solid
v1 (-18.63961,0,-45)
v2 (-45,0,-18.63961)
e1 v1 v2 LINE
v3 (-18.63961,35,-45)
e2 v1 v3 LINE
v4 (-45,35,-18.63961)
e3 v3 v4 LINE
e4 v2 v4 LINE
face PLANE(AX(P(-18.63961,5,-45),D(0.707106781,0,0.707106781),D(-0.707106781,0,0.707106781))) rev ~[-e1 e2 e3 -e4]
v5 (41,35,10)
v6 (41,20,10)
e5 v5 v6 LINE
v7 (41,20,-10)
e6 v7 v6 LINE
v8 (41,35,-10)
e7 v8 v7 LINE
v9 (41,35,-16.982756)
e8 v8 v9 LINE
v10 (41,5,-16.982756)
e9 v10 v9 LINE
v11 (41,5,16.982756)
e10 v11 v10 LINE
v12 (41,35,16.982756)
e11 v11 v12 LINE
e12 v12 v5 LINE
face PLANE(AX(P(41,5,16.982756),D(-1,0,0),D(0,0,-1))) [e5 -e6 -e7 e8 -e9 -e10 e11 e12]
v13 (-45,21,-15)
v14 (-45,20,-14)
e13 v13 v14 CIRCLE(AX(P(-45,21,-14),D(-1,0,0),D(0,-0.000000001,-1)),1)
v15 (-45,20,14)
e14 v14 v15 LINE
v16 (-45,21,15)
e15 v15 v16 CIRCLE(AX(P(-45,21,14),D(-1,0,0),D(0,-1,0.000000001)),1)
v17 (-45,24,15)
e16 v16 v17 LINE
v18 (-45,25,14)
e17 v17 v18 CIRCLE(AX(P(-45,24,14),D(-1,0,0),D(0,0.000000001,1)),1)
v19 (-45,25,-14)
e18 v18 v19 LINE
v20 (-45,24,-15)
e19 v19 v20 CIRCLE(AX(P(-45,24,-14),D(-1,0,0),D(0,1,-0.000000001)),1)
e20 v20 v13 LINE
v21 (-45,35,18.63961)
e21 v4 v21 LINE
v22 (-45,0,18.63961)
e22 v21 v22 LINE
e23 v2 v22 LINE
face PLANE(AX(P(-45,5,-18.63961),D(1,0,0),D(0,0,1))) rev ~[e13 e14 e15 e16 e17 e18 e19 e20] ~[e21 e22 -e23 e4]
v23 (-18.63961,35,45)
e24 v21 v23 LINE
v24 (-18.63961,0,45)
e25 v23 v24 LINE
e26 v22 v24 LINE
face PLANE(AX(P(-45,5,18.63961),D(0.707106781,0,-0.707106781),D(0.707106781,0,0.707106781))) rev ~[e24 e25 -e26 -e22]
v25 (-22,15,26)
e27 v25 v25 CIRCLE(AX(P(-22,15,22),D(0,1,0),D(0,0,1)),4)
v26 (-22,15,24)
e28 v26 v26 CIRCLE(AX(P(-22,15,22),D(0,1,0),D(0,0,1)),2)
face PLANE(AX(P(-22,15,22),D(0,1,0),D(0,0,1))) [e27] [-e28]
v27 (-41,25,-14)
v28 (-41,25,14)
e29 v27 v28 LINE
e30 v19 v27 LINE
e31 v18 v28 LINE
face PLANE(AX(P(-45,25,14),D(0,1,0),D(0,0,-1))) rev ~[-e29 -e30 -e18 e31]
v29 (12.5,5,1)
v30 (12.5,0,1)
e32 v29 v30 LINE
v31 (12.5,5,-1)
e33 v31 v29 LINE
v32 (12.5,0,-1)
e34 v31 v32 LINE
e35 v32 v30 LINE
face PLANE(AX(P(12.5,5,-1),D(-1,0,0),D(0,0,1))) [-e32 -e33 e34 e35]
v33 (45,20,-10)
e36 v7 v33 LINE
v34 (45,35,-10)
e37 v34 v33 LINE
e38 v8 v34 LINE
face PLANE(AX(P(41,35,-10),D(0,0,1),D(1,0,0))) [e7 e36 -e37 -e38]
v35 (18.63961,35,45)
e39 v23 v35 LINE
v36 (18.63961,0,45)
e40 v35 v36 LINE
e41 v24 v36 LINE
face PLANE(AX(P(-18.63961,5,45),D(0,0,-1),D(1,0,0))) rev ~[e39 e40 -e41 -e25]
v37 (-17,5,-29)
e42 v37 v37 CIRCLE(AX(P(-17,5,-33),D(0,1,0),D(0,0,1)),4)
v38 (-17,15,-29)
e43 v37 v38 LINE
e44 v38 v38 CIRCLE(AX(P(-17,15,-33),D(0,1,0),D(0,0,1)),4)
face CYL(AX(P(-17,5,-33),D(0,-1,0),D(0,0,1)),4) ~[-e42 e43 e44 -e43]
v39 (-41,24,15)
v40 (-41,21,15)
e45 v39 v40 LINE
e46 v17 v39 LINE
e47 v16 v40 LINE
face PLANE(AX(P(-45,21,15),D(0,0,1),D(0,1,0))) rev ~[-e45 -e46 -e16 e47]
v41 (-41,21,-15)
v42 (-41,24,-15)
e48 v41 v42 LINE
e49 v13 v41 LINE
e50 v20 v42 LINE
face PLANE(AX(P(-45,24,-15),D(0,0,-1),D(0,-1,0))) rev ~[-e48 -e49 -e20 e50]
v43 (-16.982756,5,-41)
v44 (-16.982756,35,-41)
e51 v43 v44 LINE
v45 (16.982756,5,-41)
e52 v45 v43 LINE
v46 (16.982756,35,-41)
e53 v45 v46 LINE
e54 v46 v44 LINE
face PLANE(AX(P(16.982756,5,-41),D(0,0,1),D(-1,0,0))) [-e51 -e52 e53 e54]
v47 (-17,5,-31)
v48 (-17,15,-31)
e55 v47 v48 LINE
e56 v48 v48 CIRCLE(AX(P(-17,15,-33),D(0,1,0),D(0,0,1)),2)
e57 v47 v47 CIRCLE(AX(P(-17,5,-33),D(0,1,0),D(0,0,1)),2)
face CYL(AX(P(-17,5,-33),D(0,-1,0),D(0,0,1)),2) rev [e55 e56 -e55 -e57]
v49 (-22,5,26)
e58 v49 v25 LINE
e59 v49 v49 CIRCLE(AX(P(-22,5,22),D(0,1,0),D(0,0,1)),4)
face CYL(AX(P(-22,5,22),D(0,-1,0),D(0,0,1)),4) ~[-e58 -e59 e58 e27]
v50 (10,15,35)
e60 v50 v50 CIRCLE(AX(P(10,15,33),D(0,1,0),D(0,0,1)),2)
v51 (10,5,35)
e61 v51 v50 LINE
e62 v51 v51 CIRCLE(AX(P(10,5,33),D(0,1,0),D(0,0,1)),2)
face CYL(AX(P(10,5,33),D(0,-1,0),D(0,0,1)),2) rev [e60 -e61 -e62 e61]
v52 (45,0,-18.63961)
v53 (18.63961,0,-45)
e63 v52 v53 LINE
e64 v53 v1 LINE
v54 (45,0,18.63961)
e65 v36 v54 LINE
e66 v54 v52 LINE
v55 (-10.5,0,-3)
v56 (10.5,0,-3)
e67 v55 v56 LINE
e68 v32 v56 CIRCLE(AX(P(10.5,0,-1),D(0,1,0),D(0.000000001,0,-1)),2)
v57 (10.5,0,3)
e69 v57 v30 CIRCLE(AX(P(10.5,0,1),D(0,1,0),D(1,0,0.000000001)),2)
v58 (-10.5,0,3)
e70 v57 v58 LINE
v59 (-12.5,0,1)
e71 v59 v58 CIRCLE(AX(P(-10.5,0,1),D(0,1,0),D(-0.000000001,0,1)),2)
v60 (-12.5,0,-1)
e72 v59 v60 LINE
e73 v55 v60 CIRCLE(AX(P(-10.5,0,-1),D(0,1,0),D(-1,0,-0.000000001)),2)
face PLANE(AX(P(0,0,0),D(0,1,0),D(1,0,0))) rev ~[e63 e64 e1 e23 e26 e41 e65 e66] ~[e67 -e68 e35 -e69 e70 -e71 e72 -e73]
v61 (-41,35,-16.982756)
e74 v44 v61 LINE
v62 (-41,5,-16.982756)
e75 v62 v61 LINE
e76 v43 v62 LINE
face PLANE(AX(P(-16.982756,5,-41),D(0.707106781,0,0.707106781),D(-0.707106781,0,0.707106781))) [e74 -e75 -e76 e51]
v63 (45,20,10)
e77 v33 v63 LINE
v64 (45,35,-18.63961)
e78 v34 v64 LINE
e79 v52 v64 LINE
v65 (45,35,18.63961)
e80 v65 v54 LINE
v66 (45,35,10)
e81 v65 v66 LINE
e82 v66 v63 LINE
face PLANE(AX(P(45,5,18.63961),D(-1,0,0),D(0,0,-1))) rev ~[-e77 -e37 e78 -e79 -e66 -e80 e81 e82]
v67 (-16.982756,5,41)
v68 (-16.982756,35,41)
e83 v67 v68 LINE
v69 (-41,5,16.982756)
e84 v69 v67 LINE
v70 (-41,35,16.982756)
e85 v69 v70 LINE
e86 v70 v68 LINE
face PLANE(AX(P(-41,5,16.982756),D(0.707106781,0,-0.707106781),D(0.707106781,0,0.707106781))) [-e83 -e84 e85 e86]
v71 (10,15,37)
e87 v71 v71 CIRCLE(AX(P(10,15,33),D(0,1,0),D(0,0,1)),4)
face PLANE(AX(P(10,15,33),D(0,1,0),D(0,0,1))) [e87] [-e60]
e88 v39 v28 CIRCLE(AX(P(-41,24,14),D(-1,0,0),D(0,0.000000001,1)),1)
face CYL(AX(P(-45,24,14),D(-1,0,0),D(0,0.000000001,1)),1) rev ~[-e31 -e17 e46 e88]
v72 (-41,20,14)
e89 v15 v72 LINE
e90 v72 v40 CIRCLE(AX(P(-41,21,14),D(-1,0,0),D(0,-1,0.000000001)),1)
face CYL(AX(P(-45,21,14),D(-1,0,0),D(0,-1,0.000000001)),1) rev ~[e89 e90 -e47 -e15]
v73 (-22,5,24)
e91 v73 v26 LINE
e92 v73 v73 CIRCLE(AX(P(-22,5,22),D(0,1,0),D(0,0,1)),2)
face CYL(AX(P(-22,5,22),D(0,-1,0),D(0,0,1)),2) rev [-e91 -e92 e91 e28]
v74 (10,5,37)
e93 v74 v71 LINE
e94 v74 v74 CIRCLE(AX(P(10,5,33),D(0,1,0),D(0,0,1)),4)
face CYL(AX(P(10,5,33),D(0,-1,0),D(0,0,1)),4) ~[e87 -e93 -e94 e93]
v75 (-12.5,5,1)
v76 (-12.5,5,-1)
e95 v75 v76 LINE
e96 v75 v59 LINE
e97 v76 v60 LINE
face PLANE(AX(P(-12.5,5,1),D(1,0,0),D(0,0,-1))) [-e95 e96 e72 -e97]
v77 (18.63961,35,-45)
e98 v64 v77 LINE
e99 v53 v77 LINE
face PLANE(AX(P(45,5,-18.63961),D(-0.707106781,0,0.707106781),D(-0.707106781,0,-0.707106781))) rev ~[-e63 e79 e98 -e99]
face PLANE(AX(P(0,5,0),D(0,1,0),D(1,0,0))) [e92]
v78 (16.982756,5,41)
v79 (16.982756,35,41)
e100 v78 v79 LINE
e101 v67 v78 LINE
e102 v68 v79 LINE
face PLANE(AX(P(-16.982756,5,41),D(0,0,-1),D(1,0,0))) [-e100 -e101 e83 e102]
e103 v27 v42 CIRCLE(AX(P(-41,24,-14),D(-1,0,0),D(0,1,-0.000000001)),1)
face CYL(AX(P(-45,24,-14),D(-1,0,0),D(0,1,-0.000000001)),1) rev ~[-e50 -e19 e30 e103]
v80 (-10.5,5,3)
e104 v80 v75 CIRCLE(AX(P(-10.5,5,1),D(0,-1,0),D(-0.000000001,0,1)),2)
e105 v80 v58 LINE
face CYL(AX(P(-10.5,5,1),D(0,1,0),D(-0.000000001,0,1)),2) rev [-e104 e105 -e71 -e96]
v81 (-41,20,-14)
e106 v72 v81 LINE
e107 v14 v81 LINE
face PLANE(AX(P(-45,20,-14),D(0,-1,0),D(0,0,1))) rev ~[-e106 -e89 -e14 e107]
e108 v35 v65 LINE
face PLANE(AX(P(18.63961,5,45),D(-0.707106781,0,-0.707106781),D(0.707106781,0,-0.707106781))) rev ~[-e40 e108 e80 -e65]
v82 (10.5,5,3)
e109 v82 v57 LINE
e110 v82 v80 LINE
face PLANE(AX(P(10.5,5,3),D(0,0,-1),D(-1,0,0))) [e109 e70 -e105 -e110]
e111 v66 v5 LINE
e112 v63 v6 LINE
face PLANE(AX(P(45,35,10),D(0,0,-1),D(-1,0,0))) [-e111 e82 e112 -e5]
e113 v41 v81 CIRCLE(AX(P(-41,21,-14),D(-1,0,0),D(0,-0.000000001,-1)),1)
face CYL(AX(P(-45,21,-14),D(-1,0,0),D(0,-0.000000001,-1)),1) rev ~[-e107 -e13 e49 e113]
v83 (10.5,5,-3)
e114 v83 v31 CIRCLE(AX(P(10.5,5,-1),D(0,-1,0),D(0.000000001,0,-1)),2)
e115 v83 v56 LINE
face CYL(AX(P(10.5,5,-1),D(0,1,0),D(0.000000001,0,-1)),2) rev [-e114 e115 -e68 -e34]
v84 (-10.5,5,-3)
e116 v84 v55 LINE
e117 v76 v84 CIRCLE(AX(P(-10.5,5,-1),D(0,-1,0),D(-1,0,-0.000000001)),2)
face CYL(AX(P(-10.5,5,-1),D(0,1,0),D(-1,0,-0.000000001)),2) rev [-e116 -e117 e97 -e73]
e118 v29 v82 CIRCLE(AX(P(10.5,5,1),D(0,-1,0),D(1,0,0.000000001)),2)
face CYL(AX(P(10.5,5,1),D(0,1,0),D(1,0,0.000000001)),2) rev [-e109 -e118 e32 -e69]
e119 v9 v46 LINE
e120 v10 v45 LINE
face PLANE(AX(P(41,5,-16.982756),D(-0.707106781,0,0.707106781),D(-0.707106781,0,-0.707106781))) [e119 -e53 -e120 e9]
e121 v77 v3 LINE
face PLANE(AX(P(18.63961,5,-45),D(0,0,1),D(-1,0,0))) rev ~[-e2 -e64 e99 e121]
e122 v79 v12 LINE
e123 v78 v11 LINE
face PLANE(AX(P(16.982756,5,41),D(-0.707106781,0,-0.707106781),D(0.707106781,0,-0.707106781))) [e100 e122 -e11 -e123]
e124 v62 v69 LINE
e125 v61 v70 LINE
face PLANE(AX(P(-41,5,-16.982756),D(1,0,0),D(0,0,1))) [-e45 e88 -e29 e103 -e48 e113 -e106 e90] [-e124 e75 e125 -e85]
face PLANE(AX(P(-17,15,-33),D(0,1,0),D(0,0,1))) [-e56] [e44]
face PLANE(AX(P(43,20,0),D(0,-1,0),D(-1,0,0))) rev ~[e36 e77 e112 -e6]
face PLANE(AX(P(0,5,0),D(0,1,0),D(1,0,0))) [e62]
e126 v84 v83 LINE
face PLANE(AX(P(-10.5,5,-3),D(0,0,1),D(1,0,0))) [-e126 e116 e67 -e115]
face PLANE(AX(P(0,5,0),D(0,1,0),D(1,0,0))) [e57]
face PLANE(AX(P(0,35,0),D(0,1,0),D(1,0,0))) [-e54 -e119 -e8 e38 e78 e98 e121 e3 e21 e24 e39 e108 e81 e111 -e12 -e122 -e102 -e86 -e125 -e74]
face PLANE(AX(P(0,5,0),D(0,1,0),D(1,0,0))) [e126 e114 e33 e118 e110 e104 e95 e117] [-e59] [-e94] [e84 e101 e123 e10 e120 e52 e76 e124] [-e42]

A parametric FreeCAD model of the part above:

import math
import FreeCAD as App
import Part
import Sketcher

V = App.Vector
Q = App.Units.Quantity

doc = App.newDocument("Part")
body = doc.addObject("PartDesign::Body", "Body")

# Sketch on XZ plane
sketch1 = body.newObject("Sketcher::SketchObject", "Sketch")
sketch1.AttachmentSupport = (doc.getObject("XZ_Plane"), [""])
sketch1.MapMode = "FlatFace"
sketch1.addGeometry([
    Part.LineSegment(V(45, -19, 0), V(19, -45, 0)),  # 0
    Part.LineSegment(V(19, -45, 0), V(-19, -45, 0)),  # 1
    Part.LineSegment(V(-19, -45, 0), V(-45, -19, 0)),  # 2
    Part.LineSegment(V(-45, -19, 0), V(-45, 19, 0)),  # 3
    Part.LineSegment(V(-45, 19, 0), V(-19, 45, 0)),  # 4
    Part.LineSegment(V(-19, 45, 0), V(19, 45, 0)),  # 5
    Part.LineSegment(V(19, 45, 0), V(45, 19, 0)),  # 6
    Part.LineSegment(V(45, 19, 0), V(45, -19, 0)),  # 7
], False)
sketch1.addConstraint([
    Sketcher.Constraint("Coincident", 0, 2, 1, 1),
    Sketcher.Constraint("Coincident", 1, 2, 2, 1),
    Sketcher.Constraint("Coincident", 2, 2, 3, 1),
    Sketcher.Constraint("Coincident", 3, 2, 4, 1),
    Sketcher.Constraint("Coincident", 4, 2, 5, 1),
    Sketcher.Constraint("Coincident", 5, 2, 6, 1),
    Sketcher.Constraint("Coincident", 6, 2, 7, 1),
    Sketcher.Constraint("Coincident", 7, 2, 0, 1),
    Sketcher.Constraint("Horizontal", 1),
    Sketcher.Constraint("Vertical", 3),
    Sketcher.Constraint("Horizontal", 5),
    Sketcher.Constraint("Vertical", 7),
    Sketcher.Constraint("Symmetric", 0, 2, 4, 2, -1, 1),
    Sketcher.Constraint("Symmetric", 2, 2, 6, 2, -1, 1),
    Sketcher.Constraint("Perpendicular", 0, 2),
    Sketcher.Constraint("Perpendicular", 2, 4),
    Sketcher.Constraint("Perpendicular", 4, 6),
    Sketcher.Constraint("Horizontal", 3, 2, 6, 2),
    Sketcher.Constraint("Vertical", 1, 2, 4, 2),
    Sketcher.Constraint("Equal", 5, 3),
    Sketcher.Constraint("DistanceY", 0, 2, -1, 1, Q("45 mm")),
    Sketcher.Constraint("DistanceX", 1, 2, 1, 1, Q("37.279221 mm")),
])
pad1 = body.newObject("PartDesign::Pad", "Pad")
pad1.Profile = sketch1
pad1.Length = 5
pad1.Reversed = True

# Sketch on XZ plane
sketch2 = body.newObject("Sketcher::SketchObject", "Sketch001")
sketch2.AttachmentSupport = (doc.getObject("XZ_Plane"), [""])
sketch2.MapMode = "FlatFace"
sketch2.AttachmentOffset = App.Placement(V(0, 0, -5), App.Rotation())
sketch2.addGeometry([
    Part.LineSegment(V(45, 19, 0), V(45, -19, 0)),  # 0
    Part.LineSegment(V(45, -19, 0), V(19, -45, 0)),  # 1
    Part.LineSegment(V(19, -45, 0), V(-19, -45, 0)),  # 2
    Part.LineSegment(V(-19, -45, 0), V(-45, -19, 0)),  # 3
    Part.LineSegment(V(-45, -19, 0), V(-45, 19, 0)),  # 4
    Part.LineSegment(V(-45, 19, 0), V(-19, 45, 0)),  # 5
    Part.LineSegment(V(-19, 45, 0), V(19, 45, 0)),  # 6
    Part.LineSegment(V(19, 45, 0), V(45, 19, 0)),  # 7
    Part.LineSegment(V(17, -41, 0), V(41, -17, 0)),  # 8
    Part.LineSegment(V(41, -17, 0), V(41, 17, 0)),  # 9
    Part.LineSegment(V(41, 17, 0), V(17, 41, 0)),  # 10
    Part.LineSegment(V(17, 41, 0), V(-17, 41, 0)),  # 11
    Part.LineSegment(V(-17, 41, 0), V(-41, 17, 0)),  # 12
    Part.LineSegment(V(-41, 17, 0), V(-41, -17, 0)),  # 13
    Part.LineSegment(V(-41, -17, 0), V(-17, -41, 0)),  # 14
    Part.LineSegment(V(-17, -41, 0), V(17, -41, 0)),  # 15
], False)
sketch2.addConstraint([
    Sketcher.Constraint("Coincident", 0, 2, 1, 1),
    Sketcher.Constraint("Coincident", 1, 2, 2, 1),
    Sketcher.Constraint("Coincident", 2, 2, 3, 1),
    Sketcher.Constraint("Coincident", 3, 2, 4, 1),
    Sketcher.Constraint("Coincident", 4, 2, 5, 1),
    Sketcher.Constraint("Coincident", 5, 2, 6, 1),
    Sketcher.Constraint("Coincident", 6, 2, 7, 1),
    Sketcher.Constraint("Coincident", 7, 2, 0, 1),
    Sketcher.Constraint("Coincident", 8, 2, 9, 1),
    Sketcher.Constraint("Coincident", 9, 2, 10, 1),
    Sketcher.Constraint("Coincident", 10, 2, 11, 1),
    Sketcher.Constraint("Coincident", 11, 2, 12, 1),
    Sketcher.Constraint("Coincident", 12, 2, 13, 1),
    Sketcher.Constraint("Coincident", 13, 2, 14, 1),
    Sketcher.Constraint("Coincident", 14, 2, 15, 1),
    Sketcher.Constraint("Coincident", 15, 2, 8, 1),
    Sketcher.Constraint("Vertical", 0),
    Sketcher.Constraint("Horizontal", 2),
    Sketcher.Constraint("Vertical", 4),
    Sketcher.Constraint("Horizontal", 6),
    Sketcher.Constraint("Vertical", 9),
    Sketcher.Constraint("Horizontal", 11),
    Sketcher.Constraint("Vertical", 13),
    Sketcher.Constraint("Horizontal", 15),
    Sketcher.Constraint("Symmetric", 0, 2, 4, 2, -1, 1),
    Sketcher.Constraint("Symmetric", 1, 2, 5, 2, -1, 1),
    Sketcher.Constraint("Symmetric", 8, 2, 12, 2, -1, 1),
    Sketcher.Constraint("Symmetric", 10, 2, 14, 2, -1, 1),
    Sketcher.Constraint("Perpendicular", 1, 3),
    Sketcher.Constraint("Perpendicular", 5, 7),
    Sketcher.Constraint("Perpendicular", 7, 8),
    Sketcher.Constraint("Perpendicular", 8, 10),
    Sketcher.Constraint("Perpendicular", 10, 12),
    Sketcher.Constraint("Perpendicular", 12, 14),
    Sketcher.Constraint("Horizontal", 0, 2, 3, 2),
    Sketcher.Constraint("Horizontal", 4, 2, 7, 2),
    Sketcher.Constraint("Horizontal", 9, 2, 12, 2),
    Sketcher.Constraint("Vertical", 2, 2, 5, 2),
    Sketcher.Constraint("Equal", 6, 0),
    Sketcher.Constraint("Equal", 15, 9),
    Sketcher.Constraint("DistanceX", -1, 1, 0, 2, Q("45 mm")),
    Sketcher.Constraint("DistanceX", -1, 1, 8, 2, Q("41 mm")),
    Sketcher.Constraint("DistanceX", 2, 2, 2, 1, Q("37.279221 mm")),
    Sketcher.Constraint("DistanceX", 11, 2, 11, 1, Q("33.965512 mm")),
])
pad2 = body.newObject("PartDesign::Pad", "Pad001")
pad2.Profile = sketch2
pad2.Length = 30
pad2.Reversed = True

# Sketch on XZ plane
sketch3 = body.newObject("Sketcher::SketchObject", "Sketch002")
sketch3.AttachmentSupport = (doc.getObject("XZ_Plane"), [""])
sketch3.MapMode = "FlatFace"
sketch3.AttachmentOffset = App.Placement(V(0, 0, -5), App.Rotation())
sketch3.addGeometry([
    Part.Circle(V(-17, -33, 0), V(0, 0, 1), 4),  # 0
    Part.Circle(V(-17, -33, 0), V(0, 0, 1), 2),  # 1
    Part.Circle(V(10, 33, 0), V(0, 0, 1), 4),  # 2
    Part.Circle(V(10, 33, 0), V(0, 0, 1), 2),  # 3
    Part.Circle(V(-22, 22, 0), V(0, 0, 1), 4),  # 4
    Part.Circle(V(-22, 22, 0), V(0, 0, 1), 2),  # 5
], False)
sketch3.addConstraint([
    Sketcher.Constraint("Coincident", 1, 3, 0, 3),
    Sketcher.Constraint("Coincident", 3, 3, 2, 3),
    Sketcher.Constraint("Coincident", 5, 3, 4, 3),
    Sketcher.Constraint("Equal", 0, 2),
    Sketcher.Constraint("Equal", 1, 3),
    Sketcher.Constraint("Equal", 2, 4),
    Sketcher.Constraint("Equal", 3, 5),
    Sketcher.Constraint("Diameter", 0, Q("8 mm")),
    Sketcher.Constraint("Diameter", 1, Q("4 mm")),
    Sketcher.Constraint("DistanceX", 0, 3, -1, 1, Q("17 mm")),
    Sketcher.Constraint("DistanceY", 0, 3, -1, 1, Q("33 mm")),
    Sketcher.Constraint("DistanceX", -1, 1, 2, 3, Q("10 mm")),
    Sketcher.Constraint("DistanceY", -1, 1, 2, 3, Q("33 mm")),
    Sketcher.Constraint("DistanceX", 4, 3, -1, 1, Q("22 mm")),
    Sketcher.Constraint("DistanceY", -1, 1, 4, 3, Q("22 mm")),
])
pad3 = body.newObject("PartDesign::Pad", "Pad002")
pad3.Profile = sketch3
pad3.Length = 10
pad3.Reversed = True

# Sketch on XZ plane
sketch4 = body.newObject("Sketcher::SketchObject", "Sketch003")
sketch4.AttachmentSupport = (doc.getObject("XZ_Plane"), [""])
sketch4.MapMode = "FlatFace"
sketch4.AttachmentOffset = App.Placement(V(0, 0, -5), App.Rotation())
sketch4.addGeometry([
    Part.ArcOfCircle(Part.Circle(V(10.5, -1, 0), V(0, 0, 1), 2), math.radians(-90), math.radians(0)),  # 0
    Part.LineSegment(V(10.5, -3, 0), V(-10.5, -3, 0)),  # 1
    Part.ArcOfCircle(Part.Circle(V(-10.5, -1, 0), V(0, 0, 1), 2), math.radians(-180), math.radians(-90)),  # 2
    Part.LineSegment(V(-12.5, -1, 0), V(-12.5, 1, 0)),  # 3
    Part.ArcOfCircle(Part.Circle(V(-10.5, 1, 0), V(0, 0, 1), 2), math.radians(90), math.radians(180)),  # 4
    Part.LineSegment(V(-10.5, 3, 0), V(10.5, 3, 0)),  # 5
    Part.ArcOfCircle(Part.Circle(V(10.5, 1, 0), V(0, 0, 1), 2), math.radians(0), math.radians(90)),  # 6
    Part.LineSegment(V(12.5, 1, 0), V(12.5, -1, 0)),  # 7
], False)
sketch4.addConstraint([
    Sketcher.Constraint("Tangent", 0, 1, 1, 1),
    Sketcher.Constraint("Tangent", 1, 2, 2, 2),
    Sketcher.Constraint("Tangent", 2, 1, 3, 1),
    Sketcher.Constraint("Tangent", 3, 2, 4, 2),
    Sketcher.Constraint("Tangent", 4, 1, 5, 1),
    Sketcher.Constraint("Tangent", 5, 2, 6, 2),
    Sketcher.Constraint("Tangent", 6, 1, 7, 1),
    Sketcher.Constraint("Tangent", 7, 2, 0, 2),
    Sketcher.Constraint("Horizontal", 1),
    Sketcher.Constraint("Vertical", 3),
    Sketcher.Constraint("Horizontal", 5),
    Sketcher.Constraint("Vertical", 7),
    Sketcher.Constraint("Equal", 0, 2),
    Sketcher.Constraint("Equal", 2, 4),
    Sketcher.Constraint("Equal", 4, 6),
    Sketcher.Constraint("Symmetric", 0, 3, 4, 3, -1, 1),
    Sketcher.Constraint("Radius", 0, Q("2 mm")),
    Sketcher.Constraint("DistanceX", 1, 2, 1, 1, Q("21 mm")),
    Sketcher.Constraint("DistanceY", 3, 1, 3, 2, Q("2 mm")),
])
pocket1 = body.newObject("PartDesign::Pocket", "Pocket")
pocket1.Profile = sketch4
pocket1.Length = 10
pocket1.Reversed = True

# Sketch on YZ plane
sketch5 = body.newObject("Sketcher::SketchObject", "Sketch004")
sketch5.AttachmentSupport = (doc.getObject("YZ_Plane"), [""])
sketch5.MapMode = "FlatFace"
sketch5.AttachmentOffset = App.Placement(V(0, 0, -45), App.Rotation())
sketch5.addGeometry([
    Part.ArcOfCircle(Part.Circle(V(21, 14, 0), V(0, 0, 1), 1), math.radians(90), math.radians(180)),  # 0
    Part.LineSegment(V(21, 15, 0), V(24, 15, 0)),  # 1
    Part.ArcOfCircle(Part.Circle(V(24, 14, 0), V(0, 0, 1), 1), math.radians(0), math.radians(90)),  # 2
    Part.LineSegment(V(25, 14, 0), V(25, -14, 0)),  # 3
    Part.ArcOfCircle(Part.Circle(V(24, -14, 0), V(0, 0, 1), 1), math.radians(-90), math.radians(0)),  # 4
    Part.LineSegment(V(24, -15, 0), V(21, -15, 0)),  # 5
    Part.ArcOfCircle(Part.Circle(V(21, -14, 0), V(0, 0, 1), 1), math.radians(-180), math.radians(-90)),  # 6
    Part.LineSegment(V(20, -14, 0), V(20, 14, 0)),  # 7
], False)
sketch5.addConstraint([
    Sketcher.Constraint("Tangent", 0, 1, 1, 1),
    Sketcher.Constraint("Tangent", 1, 2, 2, 2),
    Sketcher.Constraint("Tangent", 2, 1, 3, 1),
    Sketcher.Constraint("Tangent", 3, 2, 4, 2),
    Sketcher.Constraint("Tangent", 4, 1, 5, 1),
    Sketcher.Constraint("Tangent", 5, 2, 6, 2),
    Sketcher.Constraint("Tangent", 6, 1, 7, 1),
    Sketcher.Constraint("Tangent", 7, 2, 0, 2),
    Sketcher.Constraint("Horizontal", 1),
    Sketcher.Constraint("Vertical", 3),
    Sketcher.Constraint("Horizontal", 5),
    Sketcher.Constraint("Vertical", 7),
    Sketcher.Constraint("Equal", 0, 2),
    Sketcher.Constraint("Equal", 2, 4),
    Sketcher.Constraint("Equal", 4, 6),
    Sketcher.Constraint("Radius", 0, Q("1 mm")),
    Sketcher.Constraint("DistanceX", 1, 1, 1, 2, Q("3 mm")),
    Sketcher.Constraint("DistanceY", 3, 2, 3, 1, Q("28 mm")),
    Sketcher.Constraint("DistanceX", -1, 1, 0, 3, Q("21 mm")),
    Sketcher.Constraint("DistanceY", -1, 1, 0, 3, Q("14 mm")),
])
pocket2 = body.newObject("PartDesign::Pocket", "Pocket001")
pocket2.Profile = sketch5
pocket2.Length = 10
pocket2.Reversed = True

# Sketch on XZ plane
sketch6 = body.newObject("Sketcher::SketchObject", "Sketch005")
sketch6.AttachmentSupport = (doc.getObject("XZ_Plane"), [""])
sketch6.MapMode = "FlatFace"
sketch6.AttachmentOffset = App.Placement(V(0, 0, -35), App.Rotation())
sketch6.addGeometry([
    Part.LineSegment(V(41, -10, 0), V(41, 10, 0)),
    Part.LineSegment(V(41, 10, 0), V(45, 10, 0)),
    Part.LineSegment(V(45, 10, 0), V(45, -10, 0)),
    Part.LineSegment(V(45, -10, 0), V(41, -10, 0)),
], False)
sketch6.addConstraint([
    Sketcher.Constraint("Coincident", 0, 2, 1, 1),
    Sketcher.Constraint("Coincident", 1, 2, 2, 1),
    Sketcher.Constraint("Coincident", 2, 2, 3, 1),
    Sketcher.Constraint("Coincident", 3, 2, 0, 1),
    Sketcher.Constraint("Vertical", 0),
    Sketcher.Constraint("Horizontal", 1),
    Sketcher.Constraint("Vertical", 2),
    Sketcher.Constraint("Horizontal", 3),
    Sketcher.Constraint("DistanceX", 1, 1, 1, 2, Q("4 mm")),
    Sketcher.Constraint("DistanceY", 0, 1, 0, 2, Q("20 mm")),
    Sketcher.Constraint("DistanceX", -1, 1, 0, 2, Q("41 mm")),
    Sketcher.Constraint("DistanceY", -1, 1, 0, 2, Q("10 mm")),
])
pocket3 = body.newObject("PartDesign::Pocket", "Pocket002")
pocket3.Profile = sketch6
pocket3.Length = 15
pocket3.Reversed = True

doc.recompute()
